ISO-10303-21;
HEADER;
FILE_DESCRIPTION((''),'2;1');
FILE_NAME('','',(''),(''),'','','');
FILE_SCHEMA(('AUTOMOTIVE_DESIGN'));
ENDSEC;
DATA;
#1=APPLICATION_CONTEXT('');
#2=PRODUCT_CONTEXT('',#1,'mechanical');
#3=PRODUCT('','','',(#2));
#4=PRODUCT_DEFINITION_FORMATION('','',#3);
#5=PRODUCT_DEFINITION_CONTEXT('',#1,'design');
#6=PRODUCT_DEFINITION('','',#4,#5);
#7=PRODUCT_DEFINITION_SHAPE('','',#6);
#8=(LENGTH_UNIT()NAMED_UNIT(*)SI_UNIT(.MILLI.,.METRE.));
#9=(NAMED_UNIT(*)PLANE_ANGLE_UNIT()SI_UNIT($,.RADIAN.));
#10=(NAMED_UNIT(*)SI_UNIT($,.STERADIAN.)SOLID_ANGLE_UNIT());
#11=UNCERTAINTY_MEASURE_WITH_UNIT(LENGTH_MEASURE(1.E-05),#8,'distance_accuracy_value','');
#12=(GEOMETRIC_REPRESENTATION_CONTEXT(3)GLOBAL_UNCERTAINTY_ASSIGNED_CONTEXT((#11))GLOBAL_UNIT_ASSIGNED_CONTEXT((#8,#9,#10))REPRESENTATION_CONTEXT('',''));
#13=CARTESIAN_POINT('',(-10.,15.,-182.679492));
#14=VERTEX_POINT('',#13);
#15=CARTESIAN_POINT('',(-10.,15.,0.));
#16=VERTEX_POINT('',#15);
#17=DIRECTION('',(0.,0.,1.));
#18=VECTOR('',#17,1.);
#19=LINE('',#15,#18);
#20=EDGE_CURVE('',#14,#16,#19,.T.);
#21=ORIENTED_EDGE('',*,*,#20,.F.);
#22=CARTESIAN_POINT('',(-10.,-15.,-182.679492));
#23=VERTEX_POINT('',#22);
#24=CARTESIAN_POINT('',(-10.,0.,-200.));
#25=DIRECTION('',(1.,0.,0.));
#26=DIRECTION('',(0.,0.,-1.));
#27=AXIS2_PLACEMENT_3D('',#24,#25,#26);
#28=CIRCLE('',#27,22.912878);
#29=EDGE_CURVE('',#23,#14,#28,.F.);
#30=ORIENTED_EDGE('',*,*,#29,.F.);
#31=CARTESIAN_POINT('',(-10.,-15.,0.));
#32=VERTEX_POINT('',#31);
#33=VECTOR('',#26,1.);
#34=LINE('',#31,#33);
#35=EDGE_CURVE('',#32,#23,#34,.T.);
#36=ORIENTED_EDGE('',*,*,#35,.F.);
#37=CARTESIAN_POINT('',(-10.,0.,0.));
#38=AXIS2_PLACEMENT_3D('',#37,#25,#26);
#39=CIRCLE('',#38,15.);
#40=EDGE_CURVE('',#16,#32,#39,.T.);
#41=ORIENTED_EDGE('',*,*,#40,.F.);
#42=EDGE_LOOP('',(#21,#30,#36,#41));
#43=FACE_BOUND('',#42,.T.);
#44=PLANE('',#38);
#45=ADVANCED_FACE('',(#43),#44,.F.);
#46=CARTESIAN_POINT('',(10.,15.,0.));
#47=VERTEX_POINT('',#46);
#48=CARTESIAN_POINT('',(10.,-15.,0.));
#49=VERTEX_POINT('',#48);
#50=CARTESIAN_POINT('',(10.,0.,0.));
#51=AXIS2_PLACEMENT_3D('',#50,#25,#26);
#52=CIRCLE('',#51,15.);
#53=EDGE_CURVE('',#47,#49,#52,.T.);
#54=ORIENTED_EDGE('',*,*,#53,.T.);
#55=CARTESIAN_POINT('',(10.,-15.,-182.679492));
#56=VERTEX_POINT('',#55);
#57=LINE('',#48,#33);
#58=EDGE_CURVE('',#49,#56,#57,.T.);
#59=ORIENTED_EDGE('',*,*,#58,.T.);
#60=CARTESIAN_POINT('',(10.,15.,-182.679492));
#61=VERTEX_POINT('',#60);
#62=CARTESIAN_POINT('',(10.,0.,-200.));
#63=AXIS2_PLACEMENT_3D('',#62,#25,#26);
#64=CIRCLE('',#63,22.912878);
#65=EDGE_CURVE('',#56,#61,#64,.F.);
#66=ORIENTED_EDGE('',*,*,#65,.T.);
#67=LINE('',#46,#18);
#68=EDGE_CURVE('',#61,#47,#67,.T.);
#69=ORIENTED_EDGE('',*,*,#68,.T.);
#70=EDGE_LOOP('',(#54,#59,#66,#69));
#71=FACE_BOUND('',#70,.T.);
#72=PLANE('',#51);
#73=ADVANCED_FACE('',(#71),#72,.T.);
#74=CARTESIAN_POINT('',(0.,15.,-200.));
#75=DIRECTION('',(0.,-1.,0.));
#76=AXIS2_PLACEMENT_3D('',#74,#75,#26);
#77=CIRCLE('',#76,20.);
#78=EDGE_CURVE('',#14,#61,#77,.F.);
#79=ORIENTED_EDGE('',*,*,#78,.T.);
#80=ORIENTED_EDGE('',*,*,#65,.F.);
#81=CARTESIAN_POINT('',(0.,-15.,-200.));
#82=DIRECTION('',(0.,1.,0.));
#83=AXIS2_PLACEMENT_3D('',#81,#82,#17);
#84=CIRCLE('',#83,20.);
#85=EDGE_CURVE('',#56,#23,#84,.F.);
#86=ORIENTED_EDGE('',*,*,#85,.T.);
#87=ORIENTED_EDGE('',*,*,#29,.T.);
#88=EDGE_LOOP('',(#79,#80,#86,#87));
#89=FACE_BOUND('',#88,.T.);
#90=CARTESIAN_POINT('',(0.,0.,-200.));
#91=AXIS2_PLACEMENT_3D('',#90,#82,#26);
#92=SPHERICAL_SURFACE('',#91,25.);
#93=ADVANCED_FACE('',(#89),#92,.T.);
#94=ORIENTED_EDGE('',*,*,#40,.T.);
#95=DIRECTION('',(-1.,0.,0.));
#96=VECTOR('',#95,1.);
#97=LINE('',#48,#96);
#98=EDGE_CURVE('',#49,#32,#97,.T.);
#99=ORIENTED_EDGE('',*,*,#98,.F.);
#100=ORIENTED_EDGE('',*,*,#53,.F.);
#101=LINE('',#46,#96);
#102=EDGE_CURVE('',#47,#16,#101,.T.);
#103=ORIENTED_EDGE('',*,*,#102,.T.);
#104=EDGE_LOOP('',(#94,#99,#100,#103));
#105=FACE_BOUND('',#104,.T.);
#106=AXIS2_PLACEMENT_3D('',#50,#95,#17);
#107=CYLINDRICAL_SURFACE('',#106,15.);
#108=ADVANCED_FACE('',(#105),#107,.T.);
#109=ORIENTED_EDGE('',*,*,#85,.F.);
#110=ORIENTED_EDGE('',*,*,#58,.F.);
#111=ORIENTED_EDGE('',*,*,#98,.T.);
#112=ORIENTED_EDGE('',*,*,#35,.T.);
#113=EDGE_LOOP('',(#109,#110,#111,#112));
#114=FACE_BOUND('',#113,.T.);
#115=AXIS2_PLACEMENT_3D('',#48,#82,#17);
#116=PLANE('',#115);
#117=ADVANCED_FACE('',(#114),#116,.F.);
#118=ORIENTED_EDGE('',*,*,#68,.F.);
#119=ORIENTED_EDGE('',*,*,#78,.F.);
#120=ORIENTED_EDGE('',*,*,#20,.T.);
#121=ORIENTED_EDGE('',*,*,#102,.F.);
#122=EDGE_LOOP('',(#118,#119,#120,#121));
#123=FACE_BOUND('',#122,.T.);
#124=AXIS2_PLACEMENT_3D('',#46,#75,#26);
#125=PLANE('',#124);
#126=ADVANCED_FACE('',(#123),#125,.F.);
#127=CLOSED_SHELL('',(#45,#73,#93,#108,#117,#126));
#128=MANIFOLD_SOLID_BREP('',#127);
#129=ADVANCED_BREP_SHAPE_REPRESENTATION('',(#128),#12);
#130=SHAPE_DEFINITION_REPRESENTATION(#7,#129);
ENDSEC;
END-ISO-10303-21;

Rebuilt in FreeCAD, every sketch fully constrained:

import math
import FreeCAD as App
import Part
import Sketcher

V = App.Vector

doc = App.newDocument("Part")
params = doc.addObject("Spreadsheet::Sheet", "Params")
for row, (alias, value) in enumerate([
    ("sketch1_radius", "15 mm"),
    ("sketch1_height", "200 mm"),
    ("pad1_length", "20 mm"),
    ("sketch2_radius", "25 mm"),
    ("revolution_angle", "360 deg"),
], start=1):
    params.set(f"A{row}", alias)
    params.set(f"B{row}", "=" + value)
    params.setAlias(f"B{row}", alias)

body = doc.addObject("PartDesign::Body", "Body")

sketch1 = body.newObject("Sketcher::SketchObject", "Sketch")
sketch1.AttachmentSupport = (doc.getObject("YZ_Plane"), [""])
sketch1.MapMode = "FlatFace"
sketch1.addGeometry(Part.LineSegment(V(15, -200, 0), V(15, 0, 0)), False)
sketch1.addGeometry(Part.ArcOfCircle(Part.Circle(V(0, 0, 0), V(0, 0, 1), 15), math.radians(0), math.radians(180)), False)
sketch1.addGeometry(Part.LineSegment(V(-15, 0, 0), V(-15, -200, 0)), False)
sketch1.addGeometry(Part.ArcOfCircle(Part.Circle(V(0, -200, 0), V(0, 0, 1), 15), math.radians(180), math.radians(360)), False)
sketch1.addConstraint(Sketcher.Constraint("Tangent", 0, 2, 1, 1))
sketch1.addConstraint(Sketcher.Constraint("Tangent", 1, 2, 2, 1))
sketch1.addConstraint(Sketcher.Constraint("Tangent", 2, 2, 3, 1))
sketch1.addConstraint(Sketcher.Constraint("Tangent", 3, 2, 0, 1))
sketch1.addConstraint(Sketcher.Constraint("Vertical", 0))
sketch1.addConstraint(Sketcher.Constraint("Vertical", 2))
sketch1.addConstraint(Sketcher.Constraint("Coincident", 1, 3, -1, 1))
sketch1.addConstraint(Sketcher.Constraint("Radius", 1, 15.0))
sketch1.addConstraint(Sketcher.Constraint("DistanceY", 0, 1, 0, 2, 200.0))
sketch1.setExpression("Constraints[7]", "Params.sketch1_radius")
sketch1.setExpression("Constraints[8]", "Params.sketch1_height")
pad1 = body.newObject("PartDesign::Pad", "Pad")
pad1.Profile = sketch1
pad1.setExpression("Length", "Params.pad1_length")
pad1.Midplane = True

sketch2 = body.newObject("Sketcher::SketchObject", "Sketch001")
sketch2.AttachmentSupport = (doc.getObject("YZ_Plane"), [""])
sketch2.MapMode = "FlatFace"
sketch2.addGeometry(Part.LineSegment(V(25, -200, 0), V(-25, -200, 0)), False)
sketch2.addGeometry(Part.ArcOfCircle(Part.Circle(V(0, -200, 0), V(0, 0, 1), 25), math.radians(180), math.radians(360)), False)
sketch2.addGeometry(Part.LineSegment(V(25, -200, 0), V(-25, -200, 0)), True)
sketch2.addConstraint(Sketcher.Constraint("Coincident", 0, 1, 1, 2))
sketch2.addConstraint(Sketcher.Constraint("Coincident", 1, 1, 0, 2))
sketch2.addConstraint(Sketcher.Constraint("Horizontal", 0))
sketch2.addConstraint(Sketcher.Constraint("Horizontal", 2))
sketch2.addConstraint(Sketcher.Constraint("Coincident", 2, 1, 0, 1))
sketch2.addConstraint(Sketcher.Constraint("PointOnObject", 1, 3, -2))
sketch2.addConstraint(Sketcher.Constraint("Horizontal", 1, 3, 0, 1))
sketch2.addConstraint(Sketcher.Constraint("Equal", 0, 2))
sketch2.addConstraint(Sketcher.Constraint("Radius", 1, 25.0))
sketch2.addConstraint(Sketcher.Constraint("DistanceY", 1, 3, -1, 1, 200.0))
sketch2.setExpression("Constraints[8]", "Params.sketch2_radius")
revolution = body.newObject("PartDesign::Revolution", "Revolution")
revolution.Profile = sketch2
revolution.ReferenceAxis = (sketch2, ["Axis0"])
revolution.setExpression("Angle", "Params.revolution_angle")

doc.recompute()
